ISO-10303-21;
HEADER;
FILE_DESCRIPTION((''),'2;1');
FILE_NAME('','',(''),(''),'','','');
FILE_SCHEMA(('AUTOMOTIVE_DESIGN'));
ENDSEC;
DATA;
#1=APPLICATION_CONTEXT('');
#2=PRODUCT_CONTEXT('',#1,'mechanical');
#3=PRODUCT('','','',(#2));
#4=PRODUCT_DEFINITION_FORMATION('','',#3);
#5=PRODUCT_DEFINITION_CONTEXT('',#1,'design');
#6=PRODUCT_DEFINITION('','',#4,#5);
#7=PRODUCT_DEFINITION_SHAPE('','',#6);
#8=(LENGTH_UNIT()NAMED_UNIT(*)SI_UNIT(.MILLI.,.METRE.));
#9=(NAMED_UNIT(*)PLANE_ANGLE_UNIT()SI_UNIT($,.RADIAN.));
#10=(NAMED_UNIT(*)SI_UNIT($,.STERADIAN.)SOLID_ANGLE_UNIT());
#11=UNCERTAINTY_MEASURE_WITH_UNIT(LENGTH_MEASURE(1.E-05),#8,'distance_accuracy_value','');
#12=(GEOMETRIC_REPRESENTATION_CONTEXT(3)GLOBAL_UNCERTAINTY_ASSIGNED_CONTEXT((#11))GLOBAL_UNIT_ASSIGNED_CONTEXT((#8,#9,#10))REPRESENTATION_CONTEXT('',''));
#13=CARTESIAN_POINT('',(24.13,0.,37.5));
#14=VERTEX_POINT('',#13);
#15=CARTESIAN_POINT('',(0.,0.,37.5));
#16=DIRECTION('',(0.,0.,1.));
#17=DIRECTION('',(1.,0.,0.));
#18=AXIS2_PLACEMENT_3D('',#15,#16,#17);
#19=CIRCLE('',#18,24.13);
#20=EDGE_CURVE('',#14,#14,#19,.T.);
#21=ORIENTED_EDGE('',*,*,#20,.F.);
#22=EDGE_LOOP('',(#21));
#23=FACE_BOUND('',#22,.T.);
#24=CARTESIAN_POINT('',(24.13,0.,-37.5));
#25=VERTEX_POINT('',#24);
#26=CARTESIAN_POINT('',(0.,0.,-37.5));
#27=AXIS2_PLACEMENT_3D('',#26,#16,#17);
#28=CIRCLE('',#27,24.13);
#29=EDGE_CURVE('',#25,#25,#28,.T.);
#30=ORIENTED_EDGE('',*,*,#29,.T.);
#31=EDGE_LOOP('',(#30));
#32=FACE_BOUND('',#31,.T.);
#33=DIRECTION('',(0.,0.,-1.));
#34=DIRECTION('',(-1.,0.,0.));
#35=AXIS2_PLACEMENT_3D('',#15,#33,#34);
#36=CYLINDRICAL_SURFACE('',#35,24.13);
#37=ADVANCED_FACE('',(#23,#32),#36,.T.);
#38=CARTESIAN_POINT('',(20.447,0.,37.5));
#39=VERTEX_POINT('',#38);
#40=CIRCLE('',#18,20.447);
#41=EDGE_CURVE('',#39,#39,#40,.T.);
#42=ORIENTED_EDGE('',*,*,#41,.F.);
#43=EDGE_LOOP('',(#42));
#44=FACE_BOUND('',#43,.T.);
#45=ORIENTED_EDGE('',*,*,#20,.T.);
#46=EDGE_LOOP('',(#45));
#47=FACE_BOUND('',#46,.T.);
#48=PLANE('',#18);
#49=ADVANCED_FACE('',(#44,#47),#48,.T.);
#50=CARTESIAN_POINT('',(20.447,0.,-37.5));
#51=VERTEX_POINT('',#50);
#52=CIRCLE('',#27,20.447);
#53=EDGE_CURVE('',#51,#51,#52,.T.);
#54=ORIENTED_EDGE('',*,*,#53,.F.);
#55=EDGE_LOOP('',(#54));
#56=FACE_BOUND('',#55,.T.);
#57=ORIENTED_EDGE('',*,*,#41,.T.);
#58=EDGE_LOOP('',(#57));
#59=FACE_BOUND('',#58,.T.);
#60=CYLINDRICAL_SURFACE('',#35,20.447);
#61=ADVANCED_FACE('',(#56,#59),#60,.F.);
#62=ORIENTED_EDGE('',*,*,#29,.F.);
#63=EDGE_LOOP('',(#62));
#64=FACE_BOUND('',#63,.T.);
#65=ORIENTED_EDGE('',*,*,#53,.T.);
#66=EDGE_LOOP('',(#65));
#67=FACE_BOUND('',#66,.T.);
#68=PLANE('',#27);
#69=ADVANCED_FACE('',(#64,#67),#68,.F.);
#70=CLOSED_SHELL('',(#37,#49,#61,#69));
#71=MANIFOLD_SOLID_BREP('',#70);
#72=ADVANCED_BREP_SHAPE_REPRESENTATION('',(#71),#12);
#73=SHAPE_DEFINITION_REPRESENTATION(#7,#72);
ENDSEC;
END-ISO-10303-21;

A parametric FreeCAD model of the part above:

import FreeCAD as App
import Part
import Sketcher
from FreeCAD import Vector
Q = App.Units.Quantity

doc = App.newDocument("Part")
params = doc.addObject("Spreadsheet::Sheet", "Params")
for row, (alias, value) in enumerate([
    ("sketch1_diameter", "1.9 in"),
    ("sketch1_diameter2", "1.61 in"),
    ("pad1_length", "75 mm"),
], start=1):
    params.set(f"A{row}", alias)
    params.set(f"B{row}", "=" + value)
    params.setAlias(f"B{row}", alias)

body = doc.addObject("PartDesign::Body", "Body")

# Sketch on XY plane
sketch1 = body.newObject("Sketcher::SketchObject", "Sketch")
sketch1.AttachmentSupport = (doc.getObject("XY_Plane"), [""])
sketch1.MapMode = "FlatFace"
sketch1.addGeometry(Part.Circle(Vector(0, 0, 0), Vector(0, 0, 1), 24), False)
sketch1.addGeometry(Part.Circle(Vector(0, 0, 0), Vector(0, 0, 1), 20), False)
sketch1.addConstraint(Sketcher.Constraint("Coincident", 0, 3, -1, 1))
sketch1.addConstraint(Sketcher.Constraint("Coincident", 1, 3, -1, 1))
sketch1.addConstraint(Sketcher.Constraint("Diameter", 0, Q("1.9 in")))
sketch1.addConstraint(Sketcher.Constraint("Diameter", 1, Q("1.61 in")))
sketch1.setExpression("Constraints[2]", "Params.sketch1_diameter")
sketch1.setExpression("Constraints[3]", "Params.sketch1_diameter2")
pad1 = body.newObject("PartDesign::Pad", "Pad")
pad1.Profile = sketch1
pad1.setExpression("Length", "Params.pad1_length")
pad1.Midplane = True

doc.recompute()
